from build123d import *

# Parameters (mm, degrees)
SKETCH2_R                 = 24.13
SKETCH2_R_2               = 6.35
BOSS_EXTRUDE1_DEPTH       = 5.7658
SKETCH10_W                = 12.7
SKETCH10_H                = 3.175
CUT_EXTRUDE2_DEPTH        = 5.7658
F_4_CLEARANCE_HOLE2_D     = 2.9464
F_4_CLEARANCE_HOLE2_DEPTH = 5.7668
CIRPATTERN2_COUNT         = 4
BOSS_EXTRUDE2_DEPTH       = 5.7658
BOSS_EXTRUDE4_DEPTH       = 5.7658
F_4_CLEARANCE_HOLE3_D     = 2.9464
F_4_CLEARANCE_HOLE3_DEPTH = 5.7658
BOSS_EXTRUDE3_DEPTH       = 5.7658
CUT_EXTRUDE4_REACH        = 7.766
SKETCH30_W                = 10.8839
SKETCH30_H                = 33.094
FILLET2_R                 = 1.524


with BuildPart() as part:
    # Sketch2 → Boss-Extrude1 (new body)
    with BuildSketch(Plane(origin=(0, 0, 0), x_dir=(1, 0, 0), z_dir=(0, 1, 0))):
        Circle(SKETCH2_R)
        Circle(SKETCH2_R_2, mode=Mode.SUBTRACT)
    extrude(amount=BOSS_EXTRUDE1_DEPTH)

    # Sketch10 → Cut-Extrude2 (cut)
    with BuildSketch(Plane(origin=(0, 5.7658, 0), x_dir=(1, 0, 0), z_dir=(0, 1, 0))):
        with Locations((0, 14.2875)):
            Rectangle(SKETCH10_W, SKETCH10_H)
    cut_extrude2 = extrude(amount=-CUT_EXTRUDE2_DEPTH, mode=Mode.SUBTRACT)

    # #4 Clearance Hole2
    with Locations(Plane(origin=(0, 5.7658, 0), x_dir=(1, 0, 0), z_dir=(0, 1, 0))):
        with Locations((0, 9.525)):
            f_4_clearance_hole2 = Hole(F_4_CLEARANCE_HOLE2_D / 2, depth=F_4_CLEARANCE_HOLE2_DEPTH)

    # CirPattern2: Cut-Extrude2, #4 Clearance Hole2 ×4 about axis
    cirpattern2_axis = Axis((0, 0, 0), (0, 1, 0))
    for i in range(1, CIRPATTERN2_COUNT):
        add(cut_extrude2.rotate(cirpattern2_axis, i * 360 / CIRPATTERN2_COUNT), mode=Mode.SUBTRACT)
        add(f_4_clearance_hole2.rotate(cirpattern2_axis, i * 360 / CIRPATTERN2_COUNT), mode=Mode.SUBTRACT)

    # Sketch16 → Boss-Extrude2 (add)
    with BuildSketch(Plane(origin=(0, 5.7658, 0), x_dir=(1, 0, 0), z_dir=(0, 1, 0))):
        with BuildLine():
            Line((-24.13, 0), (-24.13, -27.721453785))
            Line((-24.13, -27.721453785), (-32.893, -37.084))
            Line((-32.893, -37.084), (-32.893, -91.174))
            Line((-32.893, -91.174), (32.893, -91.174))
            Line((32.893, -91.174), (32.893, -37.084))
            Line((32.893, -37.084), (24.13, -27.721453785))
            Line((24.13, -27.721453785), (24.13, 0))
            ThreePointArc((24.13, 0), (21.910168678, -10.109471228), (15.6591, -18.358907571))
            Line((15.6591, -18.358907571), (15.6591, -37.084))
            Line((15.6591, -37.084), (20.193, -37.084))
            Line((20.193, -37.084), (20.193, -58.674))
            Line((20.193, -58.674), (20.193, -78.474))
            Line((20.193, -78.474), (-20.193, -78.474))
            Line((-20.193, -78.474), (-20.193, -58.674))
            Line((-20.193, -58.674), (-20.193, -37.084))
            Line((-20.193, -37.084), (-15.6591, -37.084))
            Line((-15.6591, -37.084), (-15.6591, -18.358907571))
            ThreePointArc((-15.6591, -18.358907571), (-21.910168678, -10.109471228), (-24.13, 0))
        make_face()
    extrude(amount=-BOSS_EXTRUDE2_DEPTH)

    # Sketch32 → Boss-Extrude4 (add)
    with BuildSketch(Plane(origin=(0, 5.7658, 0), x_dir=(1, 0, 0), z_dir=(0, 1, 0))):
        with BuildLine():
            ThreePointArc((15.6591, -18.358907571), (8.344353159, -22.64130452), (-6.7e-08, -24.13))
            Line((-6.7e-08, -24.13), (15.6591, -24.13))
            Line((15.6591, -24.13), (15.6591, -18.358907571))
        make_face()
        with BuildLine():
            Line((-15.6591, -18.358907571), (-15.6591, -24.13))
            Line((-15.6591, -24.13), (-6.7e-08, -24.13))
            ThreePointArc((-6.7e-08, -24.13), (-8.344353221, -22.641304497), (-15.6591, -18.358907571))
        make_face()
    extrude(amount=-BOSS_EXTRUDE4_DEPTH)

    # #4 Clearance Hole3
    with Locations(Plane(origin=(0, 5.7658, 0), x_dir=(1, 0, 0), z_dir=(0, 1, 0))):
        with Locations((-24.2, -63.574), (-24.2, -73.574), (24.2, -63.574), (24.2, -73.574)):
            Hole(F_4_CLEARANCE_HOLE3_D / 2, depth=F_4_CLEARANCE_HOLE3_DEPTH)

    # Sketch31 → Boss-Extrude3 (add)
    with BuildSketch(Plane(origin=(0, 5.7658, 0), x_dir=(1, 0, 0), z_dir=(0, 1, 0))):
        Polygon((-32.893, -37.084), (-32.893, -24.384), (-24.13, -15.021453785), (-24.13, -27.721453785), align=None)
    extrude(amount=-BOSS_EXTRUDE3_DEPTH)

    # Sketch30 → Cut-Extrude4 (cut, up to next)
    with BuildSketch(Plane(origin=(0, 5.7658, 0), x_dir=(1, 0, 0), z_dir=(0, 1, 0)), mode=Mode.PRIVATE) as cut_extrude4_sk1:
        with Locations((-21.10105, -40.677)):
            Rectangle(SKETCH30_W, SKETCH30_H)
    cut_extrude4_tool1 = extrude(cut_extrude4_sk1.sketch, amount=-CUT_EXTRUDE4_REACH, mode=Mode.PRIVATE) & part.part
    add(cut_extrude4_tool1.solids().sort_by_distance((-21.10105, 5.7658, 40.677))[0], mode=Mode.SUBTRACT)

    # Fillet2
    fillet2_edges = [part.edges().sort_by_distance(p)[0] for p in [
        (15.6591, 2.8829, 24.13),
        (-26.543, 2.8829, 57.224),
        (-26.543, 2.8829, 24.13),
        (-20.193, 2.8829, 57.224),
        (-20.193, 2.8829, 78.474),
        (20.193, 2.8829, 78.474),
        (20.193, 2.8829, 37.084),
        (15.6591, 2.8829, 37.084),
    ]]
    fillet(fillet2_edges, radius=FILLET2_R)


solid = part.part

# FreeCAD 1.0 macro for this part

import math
import FreeCAD as App
import Part
import Sketcher
from FreeCAD import Vector
Q = App.Units.Quantity


def edges_at(feature, points):
    """Names of the edges that pass closest to the given points."""
    edges = feature.Shape.Edges
    near = lambda p: min(range(len(edges)), key=lambda i: edges[i].distToShape(Part.Vertex(*p))[0])
    return sorted({f"Edge{near(p) + 1}" for p in points})


def add_polygon(sketch, points):
    """Adds a closed chain of lines whose ends are joined by coincident constraints."""
    first, n = sketch.GeometryCount, len(points)
    for a, b in zip(points, points[1:] + points[:1]):
        sketch.addGeometry(Part.LineSegment(App.Vector(*a, 0), App.Vector(*b, 0)), False)
    for i in range(n):
        sketch.addConstraint(Sketcher.Constraint("Coincident", first + i, 2, first + (i + 1) % n, 1))

doc = App.newDocument("Part")
body = doc.addObject("PartDesign::Body", "Body")

# Sketch on XZ plane
sketch1 = body.newObject("Sketcher::SketchObject", "Sketch")
sketch1.AttachmentSupport = (doc.getObject("XZ_Plane"), [""])
sketch1.MapMode = "FlatFace"
sketch1.addGeometry([
    Part.Circle(Vector(0, 0, 0), Vector(0, 0, 1), 24),
    Part.Circle(Vector(0, 0, 0), Vector(0, 0, 1), 6),
], False)
sketch1.addConstraint([
    Sketcher.Constraint("Coincident", 0, 3, -1, 1),
    Sketcher.Constraint("Coincident", 1, 3, -1, 1),
    Sketcher.Constraint("Diameter", 0, Q("1.9 in")),
    Sketcher.Constraint("Diameter", 1, Q("0.5 in")),
])
pad1 = body.newObject("PartDesign::Pad", "Pad")
pad1.Profile = sketch1
pad1.Length = Q("0.227 in")
pad1.Reversed = True

# Sketch on XZ plane
sketch2 = body.newObject("Sketcher::SketchObject", "Sketch001")
sketch2.AttachmentSupport = (doc.getObject("XZ_Plane"), [""])
sketch2.MapMode = "FlatFace"
sketch2.AttachmentOffset = App.Placement(Vector(0, 0, -0.227 * 25.4), App.Rotation())
add_polygon(sketch2, [(-6.3, -15.9), (-6.3, -12.7), (6.3, -12.7), (6.3, -15.9)])  # lines 0-3
sketch2.addConstraint([
    Sketcher.Constraint("Vertical", 0),
    Sketcher.Constraint("Horizontal", 1),
    Sketcher.Constraint("Vertical", 2),
    Sketcher.Constraint("Horizontal", 3),
    Sketcher.Constraint("DistanceX", 1, 1, 1, 2, Q("0.5 in")),
    Sketcher.Constraint("DistanceY", 0, 2, -1, 1, Q("0.5 in")),
    Sketcher.Constraint("DistanceY", 0, 1, 0, 2, Q("0.125 in")),
    Sketcher.Constraint("DistanceX", 0, 2, -1, 1, Q("0.25 in")),
])
pocket1 = body.newObject("PartDesign::Pocket", "Pocket")
pocket1.Profile = sketch2
pocket1.Length = Q("0.227 in")
pocket1.Reversed = True

# Sketch on XZ plane
sketch3 = body.newObject("Sketcher::SketchObject", "Sketch002")
sketch3.AttachmentSupport = (doc.getObject("XZ_Plane"), [""])
sketch3.MapMode = "FlatFace"
sketch3.AttachmentOffset = App.Placement(Vector(0, 0, -0.227 * 25.4), App.Rotation())
sketch3.addGeometry(Part.Circle(Vector(0, -9.5, 0), Vector(0, 0, 1), 1.5), False)
sketch3.addConstraint([
    Sketcher.Constraint("PointOnObject", 0, 3, -2),
    Sketcher.Constraint("Diameter", 0, Q("0.116 in")),
    Sketcher.Constraint("DistanceY", 0, 3, -1, 1, Q("0.375 in")),
])
doc.recompute()
hole = body.newObject("PartDesign::Hole", "Hole")
hole.Profile = sketch3
hole.ThreadType = "None"
hole.Diameter = Q("0.116 in")
hole.DepthType = "Dimension"
hole.Depth = 5.7668
hole.DrillPoint = "Flat"
hole.Reversed = True
doc.recompute()

polarpattern = body.newObject("PartDesign::PolarPattern", "PolarPattern")
polarpattern.Originals = [pocket1, hole]
polarpattern.Axis = (doc.getObject("Y_Axis"), [""])
polarpattern.Angle = 360
polarpattern.Occurrences = 4
body.Tip = polarpattern

# Sketch on XZ plane
sketch4 = body.newObject("Sketcher::SketchObject", "Sketch003")
sketch4.AttachmentSupport = (doc.getObject("XZ_Plane"), [""])
sketch4.MapMode = "FlatFace"
sketch4.AttachmentOffset = App.Placement(Vector(0, 0, -0.227 * 25.4), App.Rotation())
sketch4.addGeometry([
    Part.LineSegment(Vector(-24.1, 0, 0), Vector(-24.1, 27.7, 0)),  # 0
    Part.LineSegment(Vector(-24.1, 27.7, 0), Vector(-32.9, 37.1, 0)),  # 1
    Part.LineSegment(Vector(-32.9, 37.1, 0), Vector(-32.9, 91.2, 0)),  # 2
    Part.LineSegment(Vector(-32.9, 91.2, 0), Vector(32.9, 91.2, 0)),  # 3
    Part.LineSegment(Vector(32.9, 91.2, 0), Vector(32.9, 37.1, 0)),  # 4
    Part.LineSegment(Vector(32.9, 37.1, 0), Vector(24.1, 27.7, 0)),  # 5
    Part.LineSegment(Vector(24.1, 27.7, 0), Vector(24.1, 0, 0)),  # 6
    Part.ArcOfCircle(Part.Circle(Vector(0, 0, 0), Vector(0, 0, 1), 24.1), math.radians(0), math.radians(50)),  # 7
    Part.LineSegment(Vector(15.7, 18.4, 0), Vector(15.7, 37.1, 0)),  # 8
    Part.LineSegment(Vector(15.7, 37.1, 0), Vector(20.2, 37.1, 0)),  # 9
    Part.LineSegment(Vector(20.2, 37.1, 0), Vector(20.2, 78.5, 0)),  # 10
    Part.LineSegment(Vector(20.2, 78.5, 0), Vector(-20.2, 78.5, 0)),  # 11
    Part.LineSegment(Vector(-20.2, 78.5, 0), Vector(-20.2, 37.1, 0)),  # 12
    Part.LineSegment(Vector(-20.2, 37.1, 0), Vector(-15.7, 37.1, 0)),  # 13
    Part.LineSegment(Vector(-15.7, 37.1, 0), Vector(-15.7, 18.4, 0)),  # 14
    Part.ArcOfCircle(Part.Circle(Vector(0, 0, 0), Vector(0, 0, 1), 24.1), math.radians(130), math.radians(180)),  # 15
], False)
sketch4.addConstraint([
    Sketcher.Constraint("Coincident", 0, 2, 1, 1),
    Sketcher.Constraint("Coincident", 1, 2, 2, 1),
    Sketcher.Constraint("Coincident", 2, 2, 3, 1),
    Sketcher.Constraint("Coincident", 3, 2, 4, 1),
    Sketcher.Constraint("Coincident", 4, 2, 5, 1),
    Sketcher.Constraint("Coincident", 5, 2, 6, 1),
    Sketcher.Constraint("Tangent", 6, 2, 7, 1),
    Sketcher.Constraint("Coincident", 7, 2, 8, 1),
    Sketcher.Constraint("Coincident", 8, 2, 9, 1),
    Sketcher.Constraint("Coincident", 9, 2, 10, 1),
    Sketcher.Constraint("Coincident", 10, 2, 11, 1),
    Sketcher.Constraint("Coincident", 11, 2, 12, 1),
    Sketcher.Constraint("Coincident", 12, 2, 13, 1),
    Sketcher.Constraint("Coincident", 13, 2, 14, 1),
    Sketcher.Constraint("Coincident", 14, 2, 15, 1),
    Sketcher.Constraint("Tangent", 15, 2, 0, 1),
    Sketcher.Constraint("Vertical", 0),
    Sketcher.Constraint("Vertical", 2),
    Sketcher.Constraint("Horizontal", 3),
    Sketcher.Constraint("Vertical", 4),
    Sketcher.Constraint("Vertical", 6),
    Sketcher.Constraint("Vertical", 8),
    Sketcher.Constraint("Horizontal", 9),
    Sketcher.Constraint("Vertical", 10),
    Sketcher.Constraint("Horizontal", 11),
    Sketcher.Constraint("Vertical", 12),
    Sketcher.Constraint("Horizontal", 13),
    Sketcher.Constraint("Vertical", 14),
    Sketcher.Constraint("Coincident", 7, 3, -1, 1),
    Sketcher.Constraint("Coincident", 15, 3, -1, 1),
    Sketcher.Constraint("Equal", 7, 15),
    Sketcher.Constraint("Symmetric", 1, 2, 4, 2, -2),
    Sketcher.Constraint("Symmetric", 9, 2, 12, 2, -2),
    Sketcher.Constraint("Horizontal", 0, 2, 5, 2),
    Sketcher.Constraint("Horizontal", 4, 2, 8, 2),
    Sketcher.Constraint("Horizontal", 7, 2, 14, 2),
    Sketcher.Constraint("Radius", 7, Q("0.95 in")),
    Sketcher.Constraint("DistanceX", 3, 1, 3, 2, Q("2.59 in")),
    Sketcher.Constraint("DistanceX", 11, 2, 11, 1, Q("1.59 in")),
    Sketcher.Constraint("DistanceY", 10, 2, 3, 2, Q("0.5 in")),
    Sketcher.Constraint("DistanceY", -1, 1, 1, 2, Q("1.46 in")),
    Sketcher.Constraint("DistanceX", 9, 1, 9, 2, Q("0.1785 in")),
    Sketcher.Constraint("DistanceY", 2, 1, 2, 2, 54.09),
    Sketcher.Constraint("DistanceY", 0, 1, 0, 2, 27.721454),
])
pad2 = body.newObject("PartDesign::Pad", "Pad001")
pad2.Profile = sketch4
pad2.Length = Q("0.227 in")

# Sketch on XZ plane
sketch5 = body.newObject("Sketcher::SketchObject", "Sketch004")
sketch5.AttachmentSupport = (doc.getObject("XZ_Plane"), [""])
sketch5.MapMode = "FlatFace"
sketch5.AttachmentOffset = App.Placement(Vector(0, 0, -0.227 * 25.4), App.Rotation())
sketch5.addGeometry([
    Part.ArcOfCircle(Part.Circle(Vector(0, 0, 0), Vector(0, 0, 1), 24), math.radians(50), math.radians(90)),  # 0
    Part.LineSegment(Vector(0, 24, 0), Vector(16, 24, 0)),  # 1
    Part.LineSegment(Vector(16, 24, 0), Vector(16, 18, 0)),  # 2
    Part.LineSegment(Vector(-16, 18, 0), Vector(-16, 24, 0)),  # 3
    Part.LineSegment(Vector(-16, 24, 0), Vector(0, 24, 0)),  # 4
    Part.ArcOfCircle(Part.Circle(Vector(0, 0, 0), Vector(0, 0, 1), 24), math.radians(90), math.radians(130)),  # 5
], False)
sketch5.addConstraint([
    Sketcher.Constraint("Tangent", 0, 2, 1, 1),
    Sketcher.Constraint("Coincident", 1, 2, 2, 1),
    Sketcher.Constraint("Coincident", 2, 2, 0, 1),
    Sketcher.Constraint("Coincident", 3, 2, 4, 1),
    Sketcher.Constraint("Tangent", 4, 2, 5, 1),
    Sketcher.Constraint("Coincident", 5, 2, 3, 1),
    Sketcher.Constraint("Horizontal", 1),
    Sketcher.Constraint("Vertical", 2),
    Sketcher.Constraint("Vertical", 3),
    Sketcher.Constraint("Horizontal", 4),
    Sketcher.Constraint("Coincident", 0, 3, -1, 1),
    Sketcher.Constraint("Coincident", 5, 3, -1, 1),
    Sketcher.Constraint("Equal", 0, 5),
    Sketcher.Constraint("Horizontal", 2, 2, 5, 2),
    Sketcher.Constraint("Radius", 0, Q("0.95 in")),
    Sketcher.Constraint("DistanceX", 1, 1, 1, 2, Q("0.6165 in")),
])
pad3 = body.newObject("PartDesign::Pad", "Pad002")
pad3.Profile = sketch5
pad3.Length = Q("0.227 in")

# Sketch on XZ plane
sketch6 = body.newObject("Sketcher::SketchObject", "Sketch005")
sketch6.AttachmentSupport = (doc.getObject("XZ_Plane"), [""])
sketch6.MapMode = "FlatFace"
sketch6.AttachmentOffset = App.Placement(Vector(0, 0, -0.227 * 25.4), App.Rotation())
sketch6.addGeometry([
    Part.Circle(Vector(-24.2, 63.6, 0), Vector(0, 0, 1), 1.5),
    Part.Circle(Vector(-24.2, 73.6, 0), Vector(0, 0, 1), 1.5),
    Part.Circle(Vector(24.2, 63.6, 0), Vector(0, 0, 1), 1.5),
    Part.Circle(Vector(24.2, 73.6, 0), Vector(0, 0, 1), 1.5),
], False)
sketch6.addConstraint([
    Sketcher.Constraint("Equal", 0, 1),
    Sketcher.Constraint("Equal", 1, 2),
    Sketcher.Constraint("Equal", 2, 3),
    Sketcher.Constraint("Symmetric", 0, 3, 2, 3, -2),
    Sketcher.Constraint("Symmetric", 1, 3, 3, 3, -2),
    Sketcher.Constraint("Vertical", 0, 3, 1, 3),
    Sketcher.Constraint("Diameter", 0, Q("0.116 in")),
    Sketcher.Constraint("DistanceX", 0, 3, -1, 1, 24.2),
    Sketcher.Constraint("DistanceY", -1, 1, 0, 3, 63.574),
    Sketcher.Constraint("DistanceY", -1, 1, 1, 3, 73.574),
])
doc.recompute()
hole2 = body.newObject("PartDesign::Hole", "Hole001")
hole2.Profile = sketch6
hole2.ThreadType = "None"
hole2.Diameter = Q("0.116 in")
hole2.DepthType = "Dimension"
hole2.Depth = Q("0.227 in")
hole2.DrillPoint = "Flat"
hole2.Reversed = True

# Sketch on XZ plane
sketch7 = body.newObject("Sketcher::SketchObject", "Sketch006")
sketch7.AttachmentSupport = (doc.getObject("XZ_Plane"), [""])
sketch7.MapMode = "FlatFace"
sketch7.AttachmentOffset = App.Placement(Vector(0, 0, -0.227 * 25.4), App.Rotation())
add_polygon(sketch7, [(-33, 24), (-33, 37), (-24, 28), (-24, 15)])  # lines 0-3
sketch7.addConstraint([
    Sketcher.Constraint("Vertical", 0),
    Sketcher.Constraint("Vertical", 2),
    Sketcher.Constraint("Parallel", 1, 3),
    Sketcher.Constraint("DistanceY", 0, 1, 0, 2, Q("0.5 in")),
    Sketcher.Constraint("DistanceY", -1, 1, 0, 2, Q("1.46 in")),
    Sketcher.Constraint("DistanceX", 1, 2, -1, 1, Q("0.95 in")),
    Sketcher.Constraint("DistanceX", 0, 2, -1, 1, Q("1.295 in")),
    Sketcher.Constraint("Distance", 1, 12.823706),
])
pad4 = body.newObject("PartDesign::Pad", "Pad003")
pad4.Profile = sketch7
pad4.Length = Q("0.227 in")

# Sketch on XZ plane
sketch8 = body.newObject("Sketcher::SketchObject", "Sketch007")
sketch8.AttachmentSupport = (doc.getObject("XZ_Plane"), [""])
sketch8.MapMode = "FlatFace"
sketch8.AttachmentOffset = App.Placement(Vector(0, 0, -0.227 * 25.4), App.Rotation())
add_polygon(sketch8, [(-27, 24), (-27, 57), (-16, 57), (-16, 24)])  # lines 0-3
sketch8.addConstraint([
    Sketcher.Constraint("Vertical", 0),
    Sketcher.Constraint("Horizontal", 1),
    Sketcher.Constraint("Vertical", 2),
    Sketcher.Constraint("Horizontal", 3),
    Sketcher.Constraint("DistanceY", -1, 1, 2, 2, Q("0.95 in")),
    Sketcher.Constraint("DistanceX", 1, 1, 1, 2, Q("0.4285 in")),
    Sketcher.Constraint("DistanceX", 0, 2, -1, 1, Q("1.045 in")),
    Sketcher.Constraint("DistanceY", 0, 1, 0, 2, 33.094),
])
pocket2 = body.newObject("PartDesign::Pocket", "Pocket001")
pocket2.Profile = sketch8
pocket2.Type = "UpToFirst"
pocket2.Reversed = True
doc.recompute()

fillet = body.newObject("PartDesign::Fillet", "Fillet")
fillet.Base = (pocket2, edges_at(pocket2, [
    (15.659, 2.883, 24.13),
    (-26.543, 2.883, 57.224),
    (-26.543, 2.883, 24.13),
    (-20.193, 2.883, 57.224),
    (-20.193, 2.883, 78.474),
    (20.193, 2.883, 78.474),
    (20.193, 2.883, 37.084),
    (15.659, 2.883, 37.084),
]))
fillet.Radius = Q("0.06 in")

doc.recompute()
